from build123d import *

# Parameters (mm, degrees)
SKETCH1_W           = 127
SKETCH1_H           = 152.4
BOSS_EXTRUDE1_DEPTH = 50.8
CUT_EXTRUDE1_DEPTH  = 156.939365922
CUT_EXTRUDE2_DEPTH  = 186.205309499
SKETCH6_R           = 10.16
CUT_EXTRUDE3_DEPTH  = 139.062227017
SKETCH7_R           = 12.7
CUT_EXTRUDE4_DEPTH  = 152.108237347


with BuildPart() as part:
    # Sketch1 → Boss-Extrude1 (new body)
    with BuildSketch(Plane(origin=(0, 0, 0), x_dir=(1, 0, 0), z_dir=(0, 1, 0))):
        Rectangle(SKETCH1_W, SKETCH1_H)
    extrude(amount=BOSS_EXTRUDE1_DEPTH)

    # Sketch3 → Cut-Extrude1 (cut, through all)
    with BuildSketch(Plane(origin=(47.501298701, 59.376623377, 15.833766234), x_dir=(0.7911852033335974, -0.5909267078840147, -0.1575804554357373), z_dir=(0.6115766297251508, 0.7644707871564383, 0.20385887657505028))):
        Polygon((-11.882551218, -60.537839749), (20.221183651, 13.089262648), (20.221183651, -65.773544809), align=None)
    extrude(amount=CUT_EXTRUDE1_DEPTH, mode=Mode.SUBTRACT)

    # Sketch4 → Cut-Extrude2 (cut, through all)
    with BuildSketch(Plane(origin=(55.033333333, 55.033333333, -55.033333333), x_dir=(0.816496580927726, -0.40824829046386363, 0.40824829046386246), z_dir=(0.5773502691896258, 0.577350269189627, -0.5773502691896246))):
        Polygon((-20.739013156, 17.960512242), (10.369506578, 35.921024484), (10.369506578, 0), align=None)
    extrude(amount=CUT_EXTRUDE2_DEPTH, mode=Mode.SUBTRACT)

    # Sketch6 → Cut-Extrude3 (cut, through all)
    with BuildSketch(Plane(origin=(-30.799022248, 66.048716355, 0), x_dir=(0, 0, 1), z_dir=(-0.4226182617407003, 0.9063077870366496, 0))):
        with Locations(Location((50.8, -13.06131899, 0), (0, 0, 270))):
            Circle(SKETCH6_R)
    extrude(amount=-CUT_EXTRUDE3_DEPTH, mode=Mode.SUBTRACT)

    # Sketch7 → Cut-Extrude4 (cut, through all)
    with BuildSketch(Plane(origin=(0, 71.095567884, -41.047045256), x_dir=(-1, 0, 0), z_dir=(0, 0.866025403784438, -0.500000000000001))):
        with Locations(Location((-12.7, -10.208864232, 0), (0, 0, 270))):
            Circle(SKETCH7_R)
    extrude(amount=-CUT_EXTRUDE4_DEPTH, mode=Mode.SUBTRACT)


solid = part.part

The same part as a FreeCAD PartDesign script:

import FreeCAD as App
import Part
import Sketcher
Q = App.Units.Quantity

doc = App.newDocument("Part")
params = doc.addObject("Spreadsheet::Sheet", "Params")
for row, (alias, value) in enumerate([
    ("sketch1_width", "5 in"),
    ("sketch1_height", "6 in"),
    ("pad1_length", "2 in"),
    ("sketch4_diameter", "0.8 in"),
    ("sketch5_diameter", "1 in"),
], start=1):
    params.set(f"A{row}", alias)
    params.set(f"B{row}", "=" + value)
    params.setAlias(f"B{row}", alias)

body = doc.addObject("PartDesign::Body", "Body")

sketch1 = body.newObject("Sketcher::SketchObject", "Sketch")
sketch1.AttachmentSupport = (doc.getObject("XZ_Plane"), [""])
sketch1.MapMode = "FlatFace"
sketch1.addGeometry([
    Part.LineSegment(App.Vector(-64, -76, 0), App.Vector(-64, 76, 0)),
    Part.LineSegment(App.Vector(-64, 76, 0), App.Vector(64, 76, 0)),
    Part.LineSegment(App.Vector(64, 76, 0), App.Vector(64, -76, 0)),
    Part.LineSegment(App.Vector(64, -76, 0), App.Vector(-64, -76, 0)),
], False)
sketch1.addConstraint([
    Sketcher.Constraint("Coincident", 0, 2, 1, 1),
    Sketcher.Constraint("Coincident", 1, 2, 2, 1),
    Sketcher.Constraint("Coincident", 2, 2, 3, 1),
    Sketcher.Constraint("Coincident", 3, 2, 0, 1),
    Sketcher.Constraint("Vertical", 0),
    Sketcher.Constraint("Horizontal", 1),
    Sketcher.Constraint("Vertical", 2),
    Sketcher.Constraint("Horizontal", 3),
    Sketcher.Constraint("Symmetric", 0, 2, 2, 2, -1, 1),
    Sketcher.Constraint("DistanceX", 1, 1, 1, 2, Q("5 in")),
    Sketcher.Constraint("DistanceY", 0, 1, 0, 2, Q("6 in")),
])
sketch1.setExpression("Constraints[9]", "Params.sketch1_width")
sketch1.setExpression("Constraints[10]", "Params.sketch1_height")
pad1 = body.newObject("PartDesign::Pad", "Pad")
pad1.Profile = sketch1
pad1.setExpression("Length", "Params.pad1_length")
pad1.Reversed = True

sketch2 = body.newObject("Sketcher::SketchObject", "Sketch001")
sketch2.Placement = App.Placement(App.Vector(47.501299, 59.376623, 15.833766), App.Rotation(App.Vector(0.791185203, -0.590926708, -0.157580455), App.Vector(0.000000001, 0.257662651, -0.966234939), App.Vector(0.61157663, 0.764470787, 0.203858877), "ZXY"))
sketch2.addGeometry([
    Part.LineSegment(App.Vector(20, 13, 0), App.Vector(-12, -61, 0)),
    Part.LineSegment(App.Vector(-12, -61, 0), App.Vector(20, -66, 0)),
    Part.LineSegment(App.Vector(20, -66, 0), App.Vector(20, 13, 0)),
], False)
sketch2.addConstraint([
    Sketcher.Constraint("Coincident", 0, 2, 1, 1),
    Sketcher.Constraint("Coincident", 1, 2, 2, 1),
    Sketcher.Constraint("Coincident", 2, 2, 0, 1),
    Sketcher.Constraint("Vertical", 2),
    Sketcher.Constraint("Distance", 1, 32.527871),
    Sketcher.Constraint("DistanceY", 2, 1, 2, 2, 78.862807),
    Sketcher.Constraint("DistanceX", 0, 2, -1, 1, 11.882551),
    Sketcher.Constraint("DistanceY", 0, 2, -1, 1, 60.53784),
    Sketcher.Constraint("Distance", 0, 80.321853),
])
pocket1 = body.newObject("PartDesign::Pocket", "Pocket")
pocket1.Profile = sketch2
pocket1.Type = "ThroughAll"
pocket1.Reversed = True

sketch3 = body.newObject("Sketcher::SketchObject", "Sketch002")
sketch3.Placement = App.Placement(App.Vector(55.033333, 55.033333, -55.033333), App.Rotation(App.Vector(0.816496581, -0.40824829, 0.40824829), App.Vector(0, -0.707106781, -0.707106781), App.Vector(0.577350269, 0.577350269, -0.577350269), "ZXY"))
sketch3.addGeometry([
    Part.LineSegment(App.Vector(10, 36, 0), App.Vector(-21, 18, 0)),
    Part.LineSegment(App.Vector(-21, 18, 0), App.Vector(10, 0, 0)),
    Part.LineSegment(App.Vector(10, 0, 0), App.Vector(10, 36, 0)),
], False)
sketch3.addConstraint([
    Sketcher.Constraint("Coincident", 0, 2, 1, 1),
    Sketcher.Constraint("Coincident", 1, 2, 2, 1),
    Sketcher.Constraint("Coincident", 2, 2, 0, 1),
    Sketcher.Constraint("Vertical", 2),
    Sketcher.Constraint("PointOnObject", 1, 2, -1),
    Sketcher.Constraint("Equal", 0, 1),
    Sketcher.Constraint("Angle", 0, Q("-150 deg")),
    Sketcher.Constraint("DistanceY", 2, 1, 2, 2, 35.921024),
    Sketcher.Constraint("DistanceX", 0, 2, -1, 1, 20.739013),
])
pocket2 = body.newObject("PartDesign::Pocket", "Pocket001")
pocket2.Profile = sketch3
pocket2.Type = "ThroughAll"
pocket2.Reversed = True

sketch4 = body.newObject("Sketcher::SketchObject", "Sketch003")
sketch4.Placement = App.Placement(App.Vector(-30.799022, 66.048716, 0), App.Rotation(App.Vector(0, 0, 1), App.Vector(0.906307787, 0.422618262, 0), App.Vector(-0.422618262, 0.906307787, 0), "ZXY"))
sketch4.addGeometry(Part.Circle(App.Vector(51, -13, 0), App.Vector(0, 0, 1), 10), False)
sketch4.addConstraint([
    Sketcher.Constraint("Diameter", 0, Q("0.8 in")),
    Sketcher.Constraint("DistanceX", -1, 1, 0, 3, Q("2 in")),
    Sketcher.Constraint("DistanceY", 0, 3, -1, 1, 13.061319),
])
sketch4.setExpression("Constraints[0]", "Params.sketch4_diameter")
pocket3 = body.newObject("PartDesign::Pocket", "Pocket002")
pocket3.Profile = sketch4
pocket3.Type = "ThroughAll"

sketch5 = body.newObject("Sketcher::SketchObject", "Sketch004")
sketch5.Placement = App.Placement(App.Vector(0, 71.095568, -41.047045), App.Rotation(App.Vector(-1, 0, 0), App.Vector(0, 0.5, 0.866025404), App.Vector(0, 0.866025404, -0.5), "ZXY"))
sketch5.addGeometry(Part.Circle(App.Vector(-13, -10, 0), App.Vector(0, 0, 1), 13), False)
sketch5.addConstraint([
    Sketcher.Constraint("Diameter", 0, Q("1 in")),
    Sketcher.Constraint("DistanceX", 0, 3, -1, 1, Q("0.5 in")),
    Sketcher.Constraint("DistanceY", 0, 3, -1, 1, 10.208864),
])
sketch5.setExpression("Constraints[0]", "Params.sketch5_diameter")
pocket4 = body.newObject("PartDesign::Pocket", "Pocket003")
pocket4.Profile = sketch5
pocket4.Type = "ThroughAll"

doc.recompute()
